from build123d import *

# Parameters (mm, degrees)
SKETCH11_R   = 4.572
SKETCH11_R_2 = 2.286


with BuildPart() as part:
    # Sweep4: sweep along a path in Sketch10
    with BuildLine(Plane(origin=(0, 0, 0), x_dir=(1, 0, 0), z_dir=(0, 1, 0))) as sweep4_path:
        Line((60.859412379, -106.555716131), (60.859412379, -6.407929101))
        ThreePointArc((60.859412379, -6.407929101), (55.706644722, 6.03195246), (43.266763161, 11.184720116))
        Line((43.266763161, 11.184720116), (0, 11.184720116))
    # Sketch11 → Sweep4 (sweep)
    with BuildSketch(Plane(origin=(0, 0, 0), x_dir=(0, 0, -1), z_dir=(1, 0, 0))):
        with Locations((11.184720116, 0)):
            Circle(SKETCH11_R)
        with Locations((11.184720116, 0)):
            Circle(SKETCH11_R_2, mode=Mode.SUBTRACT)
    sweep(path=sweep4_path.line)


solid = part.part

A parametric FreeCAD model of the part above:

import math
import FreeCAD as App
import Part
import Sketcher

V = App.Vector
Q = App.Units.Quantity

doc = App.newDocument("Part")
body = doc.addObject("PartDesign::Body", "Body")

sketch1 = doc.addObject("Sketcher::SketchObject", "Sketch")
body.addObject(sketch1)
sketch1.AttachmentSupport = (doc.YZ_Plane, [""])
sketch1.MapMode = "FlatFace"
sketch1.addGeometry([
    Part.Circle(V(0, -11.18472, 0), V(0, 0, 1), 4.572),
    Part.Circle(V(0, -11.18472, 0), V(0, 0, 1), 2.286),
], False)
sketch1.addConstraint([
    Sketcher.Constraint("Coincident", 1, 3, 0, 3),
    Sketcher.Constraint("PointOnObject", 0, 3, -2),
    Sketcher.Constraint("Diameter", 0, Q("0.36 in")),
    Sketcher.Constraint("Diameter", 1, Q("0.18 in")),
    Sketcher.Constraint("DistanceY", 0, 3, -1, 1, Q("11.18472 mm")),
])

sketch2 = doc.addObject("Sketcher::SketchObject", "Sketch001")
body.addObject(sketch2)
sketch2.AttachmentSupport = (doc.XZ_Plane, [""])
sketch2.MapMode = "FlatFace"
sketch2.addGeometry([
    Part.LineSegment(V(60.859412, 106.555716, 0), V(60.859412, 6.407929, 0)),
    Part.ArcOfCircle(Part.Circle(V(43.266763, 6.407929, 0), V(0, 0, 1), 17.592649), math.radians(-90), math.radians(0)),
    Part.LineSegment(V(43.266763, -11.18472, 0), V(0, -11.18472, 0)),
], False)
sketch2.addConstraint([
    Sketcher.Constraint("Tangent", 0, 2, 1, 2),
    Sketcher.Constraint("Tangent", 1, 1, 2, 1),
    Sketcher.Constraint("Vertical", 0),
    Sketcher.Constraint("Horizontal", 2),
    Sketcher.Constraint("PointOnObject", 2, 2, -2),
    Sketcher.Constraint("Radius", 1, Q("17.592649 mm")),
    Sketcher.Constraint("DistanceX", 2, 2, 2, 1, Q("43.266763 mm")),
    Sketcher.Constraint("DistanceY", 0, 2, 0, 1, Q("100.147787 mm")),
    Sketcher.Constraint("DistanceY", -1, 1, 1, 3, Q("6.407929 mm")),
])
doc.recompute()

additivepipe = doc.addObject("PartDesign::AdditivePipe", "AdditivePipe")
body.addObject(additivepipe)
additivepipe.Profile = sketch1
additivepipe.Spine = (sketch2, ["Edge1", "Edge2", "Edge3"])

doc.recompute()
